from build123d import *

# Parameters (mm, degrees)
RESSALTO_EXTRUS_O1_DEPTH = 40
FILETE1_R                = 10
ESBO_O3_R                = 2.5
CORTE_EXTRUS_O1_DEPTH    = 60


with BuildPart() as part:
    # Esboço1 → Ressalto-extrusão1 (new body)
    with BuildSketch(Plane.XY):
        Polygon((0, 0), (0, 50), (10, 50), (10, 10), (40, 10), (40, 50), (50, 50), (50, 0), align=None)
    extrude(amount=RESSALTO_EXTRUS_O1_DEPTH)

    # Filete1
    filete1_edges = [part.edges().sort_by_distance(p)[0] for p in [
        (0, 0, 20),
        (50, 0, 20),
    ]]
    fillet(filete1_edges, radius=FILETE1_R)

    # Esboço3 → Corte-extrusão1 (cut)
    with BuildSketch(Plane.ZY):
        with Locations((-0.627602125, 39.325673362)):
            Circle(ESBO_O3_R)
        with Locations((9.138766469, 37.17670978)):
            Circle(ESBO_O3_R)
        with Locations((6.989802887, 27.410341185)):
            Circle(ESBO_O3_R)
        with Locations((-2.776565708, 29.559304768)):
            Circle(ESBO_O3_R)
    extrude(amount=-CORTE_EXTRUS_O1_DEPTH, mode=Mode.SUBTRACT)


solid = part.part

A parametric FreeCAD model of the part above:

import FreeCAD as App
import Part
import Sketcher


def edges_at(feature, points):
    """Names of the edges that pass closest to the given points."""
    edges = feature.Shape.Edges
    near = lambda p: min(range(len(edges)), key=lambda i: edges[i].distToShape(Part.Vertex(*p))[0])
    return sorted({f"Edge{near(p) + 1}" for p in points})

doc = App.newDocument("Part")
body = doc.addObject("PartDesign::Body", "Body")

sketch1 = doc.addObject("Sketcher::SketchObject", "Sketch")
body.addObject(sketch1)
sketch1.AttachmentSupport = (doc.XY_Plane, [""])
sketch1.MapMode = "FlatFace"
sketch1.addGeometry(Part.LineSegment(App.Vector(0, 50, 0), App.Vector(0, 0, 0)), False)
sketch1.addGeometry(Part.LineSegment(App.Vector(0, 0, 0), App.Vector(50, 0, 0)), False)
sketch1.addGeometry(Part.LineSegment(App.Vector(50, 0, 0), App.Vector(50, 50, 0)), False)
sketch1.addGeometry(Part.LineSegment(App.Vector(50, 50, 0), App.Vector(40, 50, 0)), False)
sketch1.addGeometry(Part.LineSegment(App.Vector(40, 50, 0), App.Vector(40, 10, 0)), False)
sketch1.addGeometry(Part.LineSegment(App.Vector(40, 10, 0), App.Vector(10, 10, 0)), False)
sketch1.addGeometry(Part.LineSegment(App.Vector(10, 10, 0), App.Vector(10, 50, 0)), False)
sketch1.addGeometry(Part.LineSegment(App.Vector(10, 50, 0), App.Vector(0, 50, 0)), False)
sketch1.addConstraint(Sketcher.Constraint("Coincident", 0, 2, 1, 1))
sketch1.addConstraint(Sketcher.Constraint("Coincident", 1, 2, 2, 1))
sketch1.addConstraint(Sketcher.Constraint("Coincident", 2, 2, 3, 1))
sketch1.addConstraint(Sketcher.Constraint("Coincident", 3, 2, 4, 1))
sketch1.addConstraint(Sketcher.Constraint("Coincident", 4, 2, 5, 1))
sketch1.addConstraint(Sketcher.Constraint("Coincident", 5, 2, 6, 1))
sketch1.addConstraint(Sketcher.Constraint("Coincident", 6, 2, 7, 1))
sketch1.addConstraint(Sketcher.Constraint("Coincident", 7, 2, 0, 1))
sketch1.addConstraint(Sketcher.Constraint("Vertical", 0))
sketch1.addConstraint(Sketcher.Constraint("Horizontal", 1))
sketch1.addConstraint(Sketcher.Constraint("Vertical", 2))
sketch1.addConstraint(Sketcher.Constraint("Horizontal", 3))
sketch1.addConstraint(Sketcher.Constraint("Vertical", 4))
sketch1.addConstraint(Sketcher.Constraint("Horizontal", 5))
sketch1.addConstraint(Sketcher.Constraint("Vertical", 6))
sketch1.addConstraint(Sketcher.Constraint("Horizontal", 7))
sketch1.addConstraint(Sketcher.Constraint("Coincident", 0, 2, -1, 1))
sketch1.addConstraint(Sketcher.Constraint("Horizontal", 3, 2, 6, 2))
sketch1.addConstraint(Sketcher.Constraint("Equal", 3, 7))
sketch1.addConstraint(Sketcher.Constraint("Equal", 1, 0))
sketch1.addConstraint(Sketcher.Constraint("DistanceX", 1, 1, 1, 2, 50.0))
sketch1.addConstraint(Sketcher.Constraint("DistanceX", 3, 2, 3, 1, 10.0))
sketch1.addConstraint(Sketcher.Constraint("DistanceY", 4, 2, 4, 1, 40.0))
pad1 = doc.addObject("PartDesign::Pad", "Pad")
body.addObject(pad1)
pad1.Profile = sketch1
pad1.Length = 40
doc.recompute()

fillet = doc.addObject("PartDesign::Fillet", "Fillet")
body.addObject(fillet)
fillet.Base = (pad1, edges_at(pad1, [(0, 0, 20), (50, 0, 20)]))
fillet.Radius = 10

sketch2 = doc.addObject("Sketcher::SketchObject", "Sketch001")
body.addObject(sketch2)
sketch2.AttachmentSupport = (doc.YZ_Plane, [""])
sketch2.MapMode = "FlatFace"
sketch2.addGeometry(Part.Circle(App.Vector(39.325673, -0.627602, 0), App.Vector(0, 0, 1), 2.5), False)
sketch2.addGeometry(Part.Circle(App.Vector(37.17671, 9.138766, 0), App.Vector(0, 0, 1), 2.5), False)
sketch2.addGeometry(Part.Circle(App.Vector(27.410341, 6.989803, 0), App.Vector(0, 0, 1), 2.5), False)
sketch2.addGeometry(Part.Circle(App.Vector(29.559305, -2.776566, 0), App.Vector(0, 0, 1), 2.5), False)
sketch2.addConstraint(Sketcher.Constraint("Equal", 0, 1))
sketch2.addConstraint(Sketcher.Constraint("Equal", 1, 2))
sketch2.addConstraint(Sketcher.Constraint("Equal", 2, 3))
sketch2.addConstraint(Sketcher.Constraint("Diameter", 0, 5.0))
sketch2.addConstraint(Sketcher.Constraint("DistanceX", -1, 1, 1, 3, 37.17671))
sketch2.addConstraint(Sketcher.Constraint("DistanceX", -1, 1, 2, 3, 27.410341))
sketch2.addConstraint(Sketcher.Constraint("DistanceY", 0, 3, 1, 3, 9.766369))
sketch2.addConstraint(Sketcher.Constraint("DistanceX", 3, 3, 0, 3, 9.766369))
sketch2.addConstraint(Sketcher.Constraint("DistanceY", 3, 3, 2, 3, 9.766369))
sketch2.addConstraint(Sketcher.Constraint("DistanceX", -1, 1, 0, 3, 39.325673))
sketch2.addConstraint(Sketcher.Constraint("DistanceY", 0, 3, -1, 1, 0.627602))
sketch2.addConstraint(Sketcher.Constraint("DistanceY", -1, 1, 2, 3, 6.989803))
pocket1 = doc.addObject("PartDesign::Pocket", "Pocket")
body.addObject(pocket1)
pocket1.Profile = sketch2
pocket1.Length = 60
pocket1.Reversed = True

doc.recompute()
